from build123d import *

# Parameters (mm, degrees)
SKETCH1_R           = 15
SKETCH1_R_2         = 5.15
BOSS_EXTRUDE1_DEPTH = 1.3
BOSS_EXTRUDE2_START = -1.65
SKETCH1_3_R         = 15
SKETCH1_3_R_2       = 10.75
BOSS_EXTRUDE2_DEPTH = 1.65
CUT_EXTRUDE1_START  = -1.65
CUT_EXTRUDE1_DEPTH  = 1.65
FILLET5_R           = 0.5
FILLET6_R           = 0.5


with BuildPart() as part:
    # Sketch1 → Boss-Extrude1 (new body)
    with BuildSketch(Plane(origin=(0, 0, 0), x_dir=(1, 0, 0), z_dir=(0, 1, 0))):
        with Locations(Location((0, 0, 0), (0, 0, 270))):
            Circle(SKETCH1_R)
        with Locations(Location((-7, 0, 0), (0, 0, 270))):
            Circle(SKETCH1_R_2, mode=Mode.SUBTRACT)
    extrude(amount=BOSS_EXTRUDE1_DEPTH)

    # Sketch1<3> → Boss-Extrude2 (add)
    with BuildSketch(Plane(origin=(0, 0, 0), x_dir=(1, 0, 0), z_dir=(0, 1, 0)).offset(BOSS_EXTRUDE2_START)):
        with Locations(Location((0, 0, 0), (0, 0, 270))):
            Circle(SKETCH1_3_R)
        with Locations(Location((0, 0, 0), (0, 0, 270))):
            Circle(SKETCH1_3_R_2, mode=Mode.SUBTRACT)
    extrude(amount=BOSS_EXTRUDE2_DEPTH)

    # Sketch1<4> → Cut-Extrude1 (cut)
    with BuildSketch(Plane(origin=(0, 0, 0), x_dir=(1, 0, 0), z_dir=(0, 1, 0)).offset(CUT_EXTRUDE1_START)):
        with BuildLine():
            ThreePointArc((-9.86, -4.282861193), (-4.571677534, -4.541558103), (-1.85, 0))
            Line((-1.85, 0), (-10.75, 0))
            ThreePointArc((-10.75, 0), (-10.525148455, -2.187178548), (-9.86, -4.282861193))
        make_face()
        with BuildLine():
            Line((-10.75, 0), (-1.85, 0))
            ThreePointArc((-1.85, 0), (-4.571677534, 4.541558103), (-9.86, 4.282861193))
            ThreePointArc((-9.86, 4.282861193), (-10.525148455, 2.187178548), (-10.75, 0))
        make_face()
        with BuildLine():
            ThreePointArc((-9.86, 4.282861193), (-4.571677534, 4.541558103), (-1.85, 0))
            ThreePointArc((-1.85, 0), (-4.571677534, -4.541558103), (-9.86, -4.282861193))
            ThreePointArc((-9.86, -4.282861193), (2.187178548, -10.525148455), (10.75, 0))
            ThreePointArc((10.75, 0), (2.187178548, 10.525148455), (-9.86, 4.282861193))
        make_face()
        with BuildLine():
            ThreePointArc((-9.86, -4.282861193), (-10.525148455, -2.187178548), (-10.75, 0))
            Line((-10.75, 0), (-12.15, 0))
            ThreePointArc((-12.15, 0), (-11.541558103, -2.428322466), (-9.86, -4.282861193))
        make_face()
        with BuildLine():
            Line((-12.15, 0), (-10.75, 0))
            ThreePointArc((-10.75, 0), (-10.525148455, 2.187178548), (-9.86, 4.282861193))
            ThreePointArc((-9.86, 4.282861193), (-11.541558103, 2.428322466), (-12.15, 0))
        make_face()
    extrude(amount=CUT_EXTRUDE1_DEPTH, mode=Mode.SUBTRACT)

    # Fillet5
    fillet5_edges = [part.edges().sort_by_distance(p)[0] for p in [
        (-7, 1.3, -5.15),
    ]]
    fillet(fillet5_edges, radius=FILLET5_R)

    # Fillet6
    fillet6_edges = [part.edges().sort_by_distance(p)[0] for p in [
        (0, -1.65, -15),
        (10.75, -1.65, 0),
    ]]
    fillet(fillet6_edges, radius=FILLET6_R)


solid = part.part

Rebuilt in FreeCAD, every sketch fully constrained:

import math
import FreeCAD as App
import Part
import Sketcher

V = App.Vector


def edges_at(feature, points):
    """Names of the edges that pass closest to the given points."""
    edges = feature.Shape.Edges
    near = lambda p: min(range(len(edges)), key=lambda i: edges[i].distToShape(Part.Vertex(*p))[0])
    return sorted({f"Edge{near(p) + 1}" for p in points})

doc = App.newDocument("Part")
body = doc.addObject("PartDesign::Body", "Body")

# Sketch on XZ plane
sketch1 = body.newObject("Sketcher::SketchObject", "Sketch")
sketch1.AttachmentSupport = (doc.getObject("XZ_Plane"), [""])
sketch1.MapMode = "FlatFace"
sketch1.addGeometry(Part.Circle(V(0, 0, 0), V(0, 0, 1), 15), False)
sketch1.addGeometry(Part.Circle(V(-7, 0, 0), V(0, 0, 1), 5), False)
sketch1.addConstraint(Sketcher.Constraint("Coincident", 0, 3, -1, 1))
sketch1.addConstraint(Sketcher.Constraint("PointOnObject", 1, 3, -1))
sketch1.addConstraint(Sketcher.Constraint("Diameter", 0, 30.0))
sketch1.addConstraint(Sketcher.Constraint("Diameter", 1, 10.3))
sketch1.addConstraint(Sketcher.Constraint("DistanceX", 1, 3, -1, 1, 7.0))
pad1 = body.newObject("PartDesign::Pad", "Pad")
pad1.Profile = sketch1
pad1.Length = 1.3
pad1.Reversed = True

# Sketch on XZ plane
sketch2 = body.newObject("Sketcher::SketchObject", "Sketch001")
sketch2.AttachmentSupport = (doc.getObject("XZ_Plane"), [""])
sketch2.MapMode = "FlatFace"
sketch2.AttachmentOffset = App.Placement(V(0, 0, 1.65), App.Rotation())
sketch2.addGeometry(Part.Circle(V(0, 0, 0), V(0, 0, 1), 15), False)
sketch2.addGeometry(Part.Circle(V(0, 0, 0), V(0, 0, 1), 11), False)
sketch2.addConstraint(Sketcher.Constraint("Coincident", 0, 3, -1, 1))
sketch2.addConstraint(Sketcher.Constraint("Coincident", 1, 3, -1, 1))
sketch2.addConstraint(Sketcher.Constraint("Diameter", 0, 30.0))
sketch2.addConstraint(Sketcher.Constraint("Diameter", 1, 21.5))
pad2 = body.newObject("PartDesign::Pad", "Pad001")
pad2.Profile = sketch2
pad2.Length = 1.65
pad2.Reversed = True

# Sketch on XZ plane
sketch3 = body.newObject("Sketcher::SketchObject", "Sketch002")
sketch3.AttachmentSupport = (doc.getObject("XZ_Plane"), [""])
sketch3.MapMode = "FlatFace"
sketch3.AttachmentOffset = App.Placement(V(0, 0, 1.65), App.Rotation())
sketch3.addGeometry(Part.ArcOfCircle(Part.Circle(V(-7, 0, 0), V(0, 0, 1), 5.1), math.radians(180), math.radians(236)), False)
sketch3.addGeometry(Part.ArcOfCircle(Part.Circle(V(-7, 0, 0), V(0, 0, 1), 5.1), math.radians(124), math.radians(180)), False)
sketch3.addGeometry(Part.ArcOfCircle(Part.Circle(V(0, 0, 0), V(0, 0, 1), 10.8), math.radians(0), math.radians(157)), False)
sketch3.addGeometry(Part.ArcOfCircle(Part.Circle(V(0, 0, 0), V(0, 0, 1), 10.8), math.radians(-157), math.radians(0)), False)
sketch3.addConstraint(Sketcher.Constraint("Tangent", 0, 1, 1, 2))
sketch3.addConstraint(Sketcher.Constraint("Coincident", 1, 1, 2, 2))
sketch3.addConstraint(Sketcher.Constraint("Tangent", 2, 1, 3, 2))
sketch3.addConstraint(Sketcher.Constraint("Coincident", 3, 1, 0, 2))
sketch3.addConstraint(Sketcher.Constraint("Coincident", 2, 3, -1, 1))
sketch3.addConstraint(Sketcher.Constraint("Equal", 0, 1))
sketch3.addConstraint(Sketcher.Constraint("Equal", 2, 3))
sketch3.addConstraint(Sketcher.Constraint("PointOnObject", 0, 3, -1))
sketch3.addConstraint(Sketcher.Constraint("PointOnObject", 0, 1, -1))
sketch3.addConstraint(Sketcher.Constraint("PointOnObject", 2, 1, -1))
sketch3.addConstraint(Sketcher.Constraint("Radius", 0, 5.15))
sketch3.addConstraint(Sketcher.Constraint("Radius", 2, 10.75))
sketch3.addConstraint(Sketcher.Constraint("DistanceX", 0, 3, -1, 1, 7.0))
pocket1 = body.newObject("PartDesign::Pocket", "Pocket")
pocket1.Profile = sketch3
pocket1.Length = 1.65
doc.recompute()

fillet = body.newObject("PartDesign::Fillet", "Fillet")
fillet.Base = (pocket1, edges_at(pocket1, [(-7, 1.3, -5.15)]))
fillet.Radius = 0.5
doc.recompute()

fillet2 = body.newObject("PartDesign::Fillet", "Fillet001")
fillet2.Base = (fillet, edges_at(fillet, [(0, -1.65, -15), (2.187, -1.65, -10.525)]))
fillet2.Radius = 0.5

doc.recompute()
